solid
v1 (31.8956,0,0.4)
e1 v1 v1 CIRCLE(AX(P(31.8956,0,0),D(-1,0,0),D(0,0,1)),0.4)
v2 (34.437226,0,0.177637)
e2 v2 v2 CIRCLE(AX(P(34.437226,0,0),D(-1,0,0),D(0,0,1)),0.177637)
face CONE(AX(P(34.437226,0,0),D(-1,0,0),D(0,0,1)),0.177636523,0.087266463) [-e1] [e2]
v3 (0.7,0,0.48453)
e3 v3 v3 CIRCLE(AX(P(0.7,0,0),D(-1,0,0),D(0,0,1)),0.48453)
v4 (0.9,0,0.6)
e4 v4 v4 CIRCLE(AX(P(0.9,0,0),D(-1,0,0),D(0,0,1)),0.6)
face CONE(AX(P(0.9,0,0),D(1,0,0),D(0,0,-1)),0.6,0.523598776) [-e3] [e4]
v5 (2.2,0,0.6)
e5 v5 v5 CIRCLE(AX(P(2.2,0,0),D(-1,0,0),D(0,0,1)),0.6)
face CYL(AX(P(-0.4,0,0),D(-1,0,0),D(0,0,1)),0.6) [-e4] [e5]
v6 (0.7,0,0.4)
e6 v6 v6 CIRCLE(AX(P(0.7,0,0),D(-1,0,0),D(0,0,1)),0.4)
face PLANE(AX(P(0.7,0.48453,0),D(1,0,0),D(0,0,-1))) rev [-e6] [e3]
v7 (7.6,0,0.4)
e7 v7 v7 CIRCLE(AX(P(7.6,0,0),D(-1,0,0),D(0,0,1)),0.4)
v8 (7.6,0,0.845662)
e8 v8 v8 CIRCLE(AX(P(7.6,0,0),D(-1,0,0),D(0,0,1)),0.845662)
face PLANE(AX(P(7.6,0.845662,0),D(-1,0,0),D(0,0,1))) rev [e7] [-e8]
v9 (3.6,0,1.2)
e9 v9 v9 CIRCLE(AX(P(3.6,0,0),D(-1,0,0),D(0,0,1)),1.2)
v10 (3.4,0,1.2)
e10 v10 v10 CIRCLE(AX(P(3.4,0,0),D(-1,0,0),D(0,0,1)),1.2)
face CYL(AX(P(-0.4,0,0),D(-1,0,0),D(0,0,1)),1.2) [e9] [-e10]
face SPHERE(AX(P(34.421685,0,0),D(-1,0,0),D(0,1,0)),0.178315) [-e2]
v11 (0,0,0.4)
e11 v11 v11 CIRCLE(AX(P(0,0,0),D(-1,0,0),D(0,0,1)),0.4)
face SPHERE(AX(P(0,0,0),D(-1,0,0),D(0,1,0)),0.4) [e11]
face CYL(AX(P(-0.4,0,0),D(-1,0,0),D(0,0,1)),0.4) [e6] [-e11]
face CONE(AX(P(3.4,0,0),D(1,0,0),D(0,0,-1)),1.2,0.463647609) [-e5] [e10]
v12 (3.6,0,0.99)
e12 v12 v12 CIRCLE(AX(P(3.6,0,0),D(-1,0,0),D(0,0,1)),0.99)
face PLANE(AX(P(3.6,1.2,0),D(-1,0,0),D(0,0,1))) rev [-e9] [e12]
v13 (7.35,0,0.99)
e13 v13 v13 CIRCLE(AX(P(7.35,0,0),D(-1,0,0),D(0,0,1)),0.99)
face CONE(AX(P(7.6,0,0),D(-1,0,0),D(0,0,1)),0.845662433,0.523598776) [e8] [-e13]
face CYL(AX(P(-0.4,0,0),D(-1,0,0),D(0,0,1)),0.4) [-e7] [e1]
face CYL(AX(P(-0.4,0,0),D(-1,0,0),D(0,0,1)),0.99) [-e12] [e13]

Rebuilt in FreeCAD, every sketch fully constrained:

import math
import FreeCAD as App
import Part
import Sketcher

V = App.Vector
Q = App.Units.Quantity

doc = App.newDocument("Part")
body = doc.addObject("PartDesign::Body", "Body")

# Sketch on XY plane
sketch1 = body.newObject("Sketcher::SketchObject", "Sketch")
sketch1.AttachmentSupport = (doc.getObject("XY_Plane"), [""])
sketch1.MapMode = "FlatFace"
sketch1.addGeometry(Part.LineSegment(V(0.7, 0.4, 0), V(0, 0.4, 0)), False)
sketch1.addGeometry(Part.ArcOfCircle(Part.Circle(V(0, 0, 0), V(0, 0, 1), 0.4), math.radians(90), math.radians(180)), False)
sketch1.addGeometry(Part.LineSegment(V(-0.4, 0, 0), V(34.6, 0, 0)), False)
sketch1.addGeometry(Part.ArcOfCircle(Part.Circle(V(34.42, 0, 0), V(0, 0, 1), 0.18), math.radians(0), math.radians(85)), False)
sketch1.addGeometry(Part.LineSegment(V(34.44, 0.18, 0), V(31.9, 0.4, 0)), False)
sketch1.addGeometry(Part.LineSegment(V(31.9, 0.4, 0), V(7.6, 0.4, 0)), False)
sketch1.addGeometry(Part.LineSegment(V(7.6, 0.4, 0), V(7.6, 0.85, 0)), False)
sketch1.addGeometry(Part.LineSegment(V(7.6, 0.85, 0), V(7.35, 0.99, 0)), False)
sketch1.addGeometry(Part.LineSegment(V(7.35, 0.99, 0), V(3.6, 0.99, 0)), False)
sketch1.addGeometry(Part.LineSegment(V(3.6, 0.99, 0), V(3.6, 1.2, 0)), False)
sketch1.addGeometry(Part.LineSegment(V(3.6, 1.2, 0), V(3.4, 1.2, 0)), False)
sketch1.addGeometry(Part.LineSegment(V(3.4, 1.2, 0), V(2.2, 0.6, 0)), False)
sketch1.addGeometry(Part.LineSegment(V(2.2, 0.6, 0), V(0.9, 0.6, 0)), False)
sketch1.addGeometry(Part.LineSegment(V(0.9, 0.6, 0), V(0.7, 0.48, 0)), False)
sketch1.addGeometry(Part.LineSegment(V(0.7, 0.48, 0), V(0.7, 0.4, 0)), False)
sketch1.addConstraint(Sketcher.Constraint("Tangent", 0, 2, 1, 1))
sketch1.addConstraint(Sketcher.Constraint("Coincident", 1, 2, 2, 1))
sketch1.addConstraint(Sketcher.Constraint("Coincident", 2, 2, 3, 1))
sketch1.addConstraint(Sketcher.Constraint("Tangent", 3, 2, 4, 1))
sketch1.addConstraint(Sketcher.Constraint("Coincident", 4, 2, 5, 1))
sketch1.addConstraint(Sketcher.Constraint("Coincident", 5, 2, 6, 1))
sketch1.addConstraint(Sketcher.Constraint("Coincident", 6, 2, 7, 1))
sketch1.addConstraint(Sketcher.Constraint("Coincident", 7, 2, 8, 1))
sketch1.addConstraint(Sketcher.Constraint("Coincident", 8, 2, 9, 1))
sketch1.addConstraint(Sketcher.Constraint("Coincident", 9, 2, 10, 1))
sketch1.addConstraint(Sketcher.Constraint("Coincident", 10, 2, 11, 1))
sketch1.addConstraint(Sketcher.Constraint("Coincident", 11, 2, 12, 1))
sketch1.addConstraint(Sketcher.Constraint("Coincident", 12, 2, 13, 1))
sketch1.addConstraint(Sketcher.Constraint("Coincident", 13, 2, 14, 1))
sketch1.addConstraint(Sketcher.Constraint("Coincident", 14, 2, 0, 1))
sketch1.addConstraint(Sketcher.Constraint("Horizontal", 0))
sketch1.addConstraint(Sketcher.Constraint("Horizontal", 2))
sketch1.addConstraint(Sketcher.Constraint("Horizontal", 5))
sketch1.addConstraint(Sketcher.Constraint("Vertical", 6))
sketch1.addConstraint(Sketcher.Constraint("Horizontal", 8))
sketch1.addConstraint(Sketcher.Constraint("Vertical", 9))
sketch1.addConstraint(Sketcher.Constraint("Horizontal", 10))
sketch1.addConstraint(Sketcher.Constraint("Horizontal", 12))
sketch1.addConstraint(Sketcher.Constraint("Vertical", 14))
sketch1.addConstraint(Sketcher.Constraint("Coincident", 1, 3, -1, 1))
sketch1.addConstraint(Sketcher.Constraint("PointOnObject", 3, 3, -1))
sketch1.addConstraint(Sketcher.Constraint("PointOnObject", 1, 2, -1))
sketch1.addConstraint(Sketcher.Constraint("Horizontal", 0, 2, 4, 2))
sketch1.addConstraint(Sketcher.Constraint("Radius", 1, 0.4))
sketch1.addConstraint(Sketcher.Constraint("DistanceX", 2, 1, 2, 2, 35.0))
sketch1.addConstraint(Sketcher.Constraint("Angle", 4, Q("175 deg")))
sketch1.addConstraint(Sketcher.Constraint("Angle", 7, Q("150 deg")))
sketch1.addConstraint(Sketcher.Constraint("Angle", 13, Q("-150 deg")))
sketch1.addConstraint(Sketcher.Constraint("DistanceX", 0, 2, 0, 1, 0.7))
sketch1.addConstraint(Sketcher.Constraint("DistanceX", 10, 2, 10, 1, 0.2))
sketch1.addConstraint(Sketcher.Constraint("DistanceX", 12, 2, 12, 1, 1.3))
sketch1.addConstraint(Sketcher.Constraint("DistanceX", 1, 2, 5, 2, 8.0))
sketch1.addConstraint(Sketcher.Constraint("DistanceX", 8, 2, 6, 2, 4.0))
sketch1.addConstraint(Sketcher.Constraint("DistanceX", 8, 2, 8, 1, 3.75))
sketch1.addConstraint(Sketcher.Constraint("DistanceY", 9, 1, 9, 2, 0.21))
sketch1.addConstraint(Sketcher.Constraint("DistanceY", -1, 1, 9, 2, 1.2))
sketch1.addConstraint(Sketcher.Constraint("DistanceX", -1, 1, 11, 2, 2.2))
sketch1.addConstraint(Sketcher.Constraint("DistanceY", -1, 1, 11, 2, 0.6))
sketch1.addConstraint(Sketcher.Constraint("DistanceX", 5, 2, 5, 1, 24.2956))
revolution = body.newObject("PartDesign::Revolution", "Revolution")
revolution.Profile = sketch1
revolution.ReferenceAxis = (sketch1, ["H_Axis"])
revolution.Angle = 360

doc.recompute()
